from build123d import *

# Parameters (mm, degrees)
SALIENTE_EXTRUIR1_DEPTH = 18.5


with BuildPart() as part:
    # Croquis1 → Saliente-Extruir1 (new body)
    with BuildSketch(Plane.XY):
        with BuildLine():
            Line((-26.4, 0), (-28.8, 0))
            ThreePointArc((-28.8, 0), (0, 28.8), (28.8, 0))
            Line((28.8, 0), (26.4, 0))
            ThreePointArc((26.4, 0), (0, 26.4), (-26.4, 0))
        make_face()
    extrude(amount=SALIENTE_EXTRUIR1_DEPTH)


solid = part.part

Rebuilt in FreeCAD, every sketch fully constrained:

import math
import FreeCAD as App
import Part
import Sketcher

V = App.Vector

doc = App.newDocument("Part")
params = doc.addObject("Spreadsheet::Sheet", "Params")
for row, (alias, value) in enumerate([
    ("sketch1_radius", "26.4 mm"),
    ("sketch1_radius2", "28.8 mm"),
    ("pad1_length", "18.5 mm"),
], start=1):
    params.set(f"A{row}", alias)
    params.set(f"B{row}", "=" + value)
    params.setAlias(f"B{row}", alias)

body = doc.addObject("PartDesign::Body", "Body")

sketch1 = body.newObject("Sketcher::SketchObject", "Sketch")
sketch1.AttachmentSupport = (doc.getObject("XY_Plane"), [""])
sketch1.MapMode = "FlatFace"
sketch1.addGeometry([
    Part.LineSegment(V(-28.8, 0, 0), V(-26.4, 0, 0)),
    Part.ArcOfCircle(Part.Circle(V(0, 0, 0), V(0, 0, 1), 26.4), math.radians(0), math.radians(180)),
    Part.LineSegment(V(26.4, 0, 0), V(28.8, 0, 0)),
    Part.ArcOfCircle(Part.Circle(V(0, 0, 0), V(0, 0, 1), 28.8), math.radians(0), math.radians(180)),
], False)
sketch1.addConstraint([
    Sketcher.Constraint("Coincident", 0, 2, 1, 2),
    Sketcher.Constraint("Coincident", 1, 1, 2, 1),
    Sketcher.Constraint("Coincident", 2, 2, 3, 1),
    Sketcher.Constraint("Coincident", 3, 2, 0, 1),
    Sketcher.Constraint("Horizontal", 0),
    Sketcher.Constraint("Horizontal", 2),
    Sketcher.Constraint("Coincident", 1, 3, -1, 1),
    Sketcher.Constraint("Coincident", 3, 3, -1, 1),
    Sketcher.Constraint("PointOnObject", 0, 2, -1),
    Sketcher.Constraint("PointOnObject", 1, 1, -1),
    Sketcher.Constraint("Radius", 1, 26.4),
    Sketcher.Constraint("Radius", 3, 28.8),
])
sketch1.setExpression("Constraints[10]", "Params.sketch1_radius")
sketch1.setExpression("Constraints[11]", "Params.sketch1_radius2")
pad1 = body.newObject("PartDesign::Pad", "Pad")
pad1.Profile = sketch1
pad1.setExpression("Length", "Params.pad1_length")

doc.recompute()
